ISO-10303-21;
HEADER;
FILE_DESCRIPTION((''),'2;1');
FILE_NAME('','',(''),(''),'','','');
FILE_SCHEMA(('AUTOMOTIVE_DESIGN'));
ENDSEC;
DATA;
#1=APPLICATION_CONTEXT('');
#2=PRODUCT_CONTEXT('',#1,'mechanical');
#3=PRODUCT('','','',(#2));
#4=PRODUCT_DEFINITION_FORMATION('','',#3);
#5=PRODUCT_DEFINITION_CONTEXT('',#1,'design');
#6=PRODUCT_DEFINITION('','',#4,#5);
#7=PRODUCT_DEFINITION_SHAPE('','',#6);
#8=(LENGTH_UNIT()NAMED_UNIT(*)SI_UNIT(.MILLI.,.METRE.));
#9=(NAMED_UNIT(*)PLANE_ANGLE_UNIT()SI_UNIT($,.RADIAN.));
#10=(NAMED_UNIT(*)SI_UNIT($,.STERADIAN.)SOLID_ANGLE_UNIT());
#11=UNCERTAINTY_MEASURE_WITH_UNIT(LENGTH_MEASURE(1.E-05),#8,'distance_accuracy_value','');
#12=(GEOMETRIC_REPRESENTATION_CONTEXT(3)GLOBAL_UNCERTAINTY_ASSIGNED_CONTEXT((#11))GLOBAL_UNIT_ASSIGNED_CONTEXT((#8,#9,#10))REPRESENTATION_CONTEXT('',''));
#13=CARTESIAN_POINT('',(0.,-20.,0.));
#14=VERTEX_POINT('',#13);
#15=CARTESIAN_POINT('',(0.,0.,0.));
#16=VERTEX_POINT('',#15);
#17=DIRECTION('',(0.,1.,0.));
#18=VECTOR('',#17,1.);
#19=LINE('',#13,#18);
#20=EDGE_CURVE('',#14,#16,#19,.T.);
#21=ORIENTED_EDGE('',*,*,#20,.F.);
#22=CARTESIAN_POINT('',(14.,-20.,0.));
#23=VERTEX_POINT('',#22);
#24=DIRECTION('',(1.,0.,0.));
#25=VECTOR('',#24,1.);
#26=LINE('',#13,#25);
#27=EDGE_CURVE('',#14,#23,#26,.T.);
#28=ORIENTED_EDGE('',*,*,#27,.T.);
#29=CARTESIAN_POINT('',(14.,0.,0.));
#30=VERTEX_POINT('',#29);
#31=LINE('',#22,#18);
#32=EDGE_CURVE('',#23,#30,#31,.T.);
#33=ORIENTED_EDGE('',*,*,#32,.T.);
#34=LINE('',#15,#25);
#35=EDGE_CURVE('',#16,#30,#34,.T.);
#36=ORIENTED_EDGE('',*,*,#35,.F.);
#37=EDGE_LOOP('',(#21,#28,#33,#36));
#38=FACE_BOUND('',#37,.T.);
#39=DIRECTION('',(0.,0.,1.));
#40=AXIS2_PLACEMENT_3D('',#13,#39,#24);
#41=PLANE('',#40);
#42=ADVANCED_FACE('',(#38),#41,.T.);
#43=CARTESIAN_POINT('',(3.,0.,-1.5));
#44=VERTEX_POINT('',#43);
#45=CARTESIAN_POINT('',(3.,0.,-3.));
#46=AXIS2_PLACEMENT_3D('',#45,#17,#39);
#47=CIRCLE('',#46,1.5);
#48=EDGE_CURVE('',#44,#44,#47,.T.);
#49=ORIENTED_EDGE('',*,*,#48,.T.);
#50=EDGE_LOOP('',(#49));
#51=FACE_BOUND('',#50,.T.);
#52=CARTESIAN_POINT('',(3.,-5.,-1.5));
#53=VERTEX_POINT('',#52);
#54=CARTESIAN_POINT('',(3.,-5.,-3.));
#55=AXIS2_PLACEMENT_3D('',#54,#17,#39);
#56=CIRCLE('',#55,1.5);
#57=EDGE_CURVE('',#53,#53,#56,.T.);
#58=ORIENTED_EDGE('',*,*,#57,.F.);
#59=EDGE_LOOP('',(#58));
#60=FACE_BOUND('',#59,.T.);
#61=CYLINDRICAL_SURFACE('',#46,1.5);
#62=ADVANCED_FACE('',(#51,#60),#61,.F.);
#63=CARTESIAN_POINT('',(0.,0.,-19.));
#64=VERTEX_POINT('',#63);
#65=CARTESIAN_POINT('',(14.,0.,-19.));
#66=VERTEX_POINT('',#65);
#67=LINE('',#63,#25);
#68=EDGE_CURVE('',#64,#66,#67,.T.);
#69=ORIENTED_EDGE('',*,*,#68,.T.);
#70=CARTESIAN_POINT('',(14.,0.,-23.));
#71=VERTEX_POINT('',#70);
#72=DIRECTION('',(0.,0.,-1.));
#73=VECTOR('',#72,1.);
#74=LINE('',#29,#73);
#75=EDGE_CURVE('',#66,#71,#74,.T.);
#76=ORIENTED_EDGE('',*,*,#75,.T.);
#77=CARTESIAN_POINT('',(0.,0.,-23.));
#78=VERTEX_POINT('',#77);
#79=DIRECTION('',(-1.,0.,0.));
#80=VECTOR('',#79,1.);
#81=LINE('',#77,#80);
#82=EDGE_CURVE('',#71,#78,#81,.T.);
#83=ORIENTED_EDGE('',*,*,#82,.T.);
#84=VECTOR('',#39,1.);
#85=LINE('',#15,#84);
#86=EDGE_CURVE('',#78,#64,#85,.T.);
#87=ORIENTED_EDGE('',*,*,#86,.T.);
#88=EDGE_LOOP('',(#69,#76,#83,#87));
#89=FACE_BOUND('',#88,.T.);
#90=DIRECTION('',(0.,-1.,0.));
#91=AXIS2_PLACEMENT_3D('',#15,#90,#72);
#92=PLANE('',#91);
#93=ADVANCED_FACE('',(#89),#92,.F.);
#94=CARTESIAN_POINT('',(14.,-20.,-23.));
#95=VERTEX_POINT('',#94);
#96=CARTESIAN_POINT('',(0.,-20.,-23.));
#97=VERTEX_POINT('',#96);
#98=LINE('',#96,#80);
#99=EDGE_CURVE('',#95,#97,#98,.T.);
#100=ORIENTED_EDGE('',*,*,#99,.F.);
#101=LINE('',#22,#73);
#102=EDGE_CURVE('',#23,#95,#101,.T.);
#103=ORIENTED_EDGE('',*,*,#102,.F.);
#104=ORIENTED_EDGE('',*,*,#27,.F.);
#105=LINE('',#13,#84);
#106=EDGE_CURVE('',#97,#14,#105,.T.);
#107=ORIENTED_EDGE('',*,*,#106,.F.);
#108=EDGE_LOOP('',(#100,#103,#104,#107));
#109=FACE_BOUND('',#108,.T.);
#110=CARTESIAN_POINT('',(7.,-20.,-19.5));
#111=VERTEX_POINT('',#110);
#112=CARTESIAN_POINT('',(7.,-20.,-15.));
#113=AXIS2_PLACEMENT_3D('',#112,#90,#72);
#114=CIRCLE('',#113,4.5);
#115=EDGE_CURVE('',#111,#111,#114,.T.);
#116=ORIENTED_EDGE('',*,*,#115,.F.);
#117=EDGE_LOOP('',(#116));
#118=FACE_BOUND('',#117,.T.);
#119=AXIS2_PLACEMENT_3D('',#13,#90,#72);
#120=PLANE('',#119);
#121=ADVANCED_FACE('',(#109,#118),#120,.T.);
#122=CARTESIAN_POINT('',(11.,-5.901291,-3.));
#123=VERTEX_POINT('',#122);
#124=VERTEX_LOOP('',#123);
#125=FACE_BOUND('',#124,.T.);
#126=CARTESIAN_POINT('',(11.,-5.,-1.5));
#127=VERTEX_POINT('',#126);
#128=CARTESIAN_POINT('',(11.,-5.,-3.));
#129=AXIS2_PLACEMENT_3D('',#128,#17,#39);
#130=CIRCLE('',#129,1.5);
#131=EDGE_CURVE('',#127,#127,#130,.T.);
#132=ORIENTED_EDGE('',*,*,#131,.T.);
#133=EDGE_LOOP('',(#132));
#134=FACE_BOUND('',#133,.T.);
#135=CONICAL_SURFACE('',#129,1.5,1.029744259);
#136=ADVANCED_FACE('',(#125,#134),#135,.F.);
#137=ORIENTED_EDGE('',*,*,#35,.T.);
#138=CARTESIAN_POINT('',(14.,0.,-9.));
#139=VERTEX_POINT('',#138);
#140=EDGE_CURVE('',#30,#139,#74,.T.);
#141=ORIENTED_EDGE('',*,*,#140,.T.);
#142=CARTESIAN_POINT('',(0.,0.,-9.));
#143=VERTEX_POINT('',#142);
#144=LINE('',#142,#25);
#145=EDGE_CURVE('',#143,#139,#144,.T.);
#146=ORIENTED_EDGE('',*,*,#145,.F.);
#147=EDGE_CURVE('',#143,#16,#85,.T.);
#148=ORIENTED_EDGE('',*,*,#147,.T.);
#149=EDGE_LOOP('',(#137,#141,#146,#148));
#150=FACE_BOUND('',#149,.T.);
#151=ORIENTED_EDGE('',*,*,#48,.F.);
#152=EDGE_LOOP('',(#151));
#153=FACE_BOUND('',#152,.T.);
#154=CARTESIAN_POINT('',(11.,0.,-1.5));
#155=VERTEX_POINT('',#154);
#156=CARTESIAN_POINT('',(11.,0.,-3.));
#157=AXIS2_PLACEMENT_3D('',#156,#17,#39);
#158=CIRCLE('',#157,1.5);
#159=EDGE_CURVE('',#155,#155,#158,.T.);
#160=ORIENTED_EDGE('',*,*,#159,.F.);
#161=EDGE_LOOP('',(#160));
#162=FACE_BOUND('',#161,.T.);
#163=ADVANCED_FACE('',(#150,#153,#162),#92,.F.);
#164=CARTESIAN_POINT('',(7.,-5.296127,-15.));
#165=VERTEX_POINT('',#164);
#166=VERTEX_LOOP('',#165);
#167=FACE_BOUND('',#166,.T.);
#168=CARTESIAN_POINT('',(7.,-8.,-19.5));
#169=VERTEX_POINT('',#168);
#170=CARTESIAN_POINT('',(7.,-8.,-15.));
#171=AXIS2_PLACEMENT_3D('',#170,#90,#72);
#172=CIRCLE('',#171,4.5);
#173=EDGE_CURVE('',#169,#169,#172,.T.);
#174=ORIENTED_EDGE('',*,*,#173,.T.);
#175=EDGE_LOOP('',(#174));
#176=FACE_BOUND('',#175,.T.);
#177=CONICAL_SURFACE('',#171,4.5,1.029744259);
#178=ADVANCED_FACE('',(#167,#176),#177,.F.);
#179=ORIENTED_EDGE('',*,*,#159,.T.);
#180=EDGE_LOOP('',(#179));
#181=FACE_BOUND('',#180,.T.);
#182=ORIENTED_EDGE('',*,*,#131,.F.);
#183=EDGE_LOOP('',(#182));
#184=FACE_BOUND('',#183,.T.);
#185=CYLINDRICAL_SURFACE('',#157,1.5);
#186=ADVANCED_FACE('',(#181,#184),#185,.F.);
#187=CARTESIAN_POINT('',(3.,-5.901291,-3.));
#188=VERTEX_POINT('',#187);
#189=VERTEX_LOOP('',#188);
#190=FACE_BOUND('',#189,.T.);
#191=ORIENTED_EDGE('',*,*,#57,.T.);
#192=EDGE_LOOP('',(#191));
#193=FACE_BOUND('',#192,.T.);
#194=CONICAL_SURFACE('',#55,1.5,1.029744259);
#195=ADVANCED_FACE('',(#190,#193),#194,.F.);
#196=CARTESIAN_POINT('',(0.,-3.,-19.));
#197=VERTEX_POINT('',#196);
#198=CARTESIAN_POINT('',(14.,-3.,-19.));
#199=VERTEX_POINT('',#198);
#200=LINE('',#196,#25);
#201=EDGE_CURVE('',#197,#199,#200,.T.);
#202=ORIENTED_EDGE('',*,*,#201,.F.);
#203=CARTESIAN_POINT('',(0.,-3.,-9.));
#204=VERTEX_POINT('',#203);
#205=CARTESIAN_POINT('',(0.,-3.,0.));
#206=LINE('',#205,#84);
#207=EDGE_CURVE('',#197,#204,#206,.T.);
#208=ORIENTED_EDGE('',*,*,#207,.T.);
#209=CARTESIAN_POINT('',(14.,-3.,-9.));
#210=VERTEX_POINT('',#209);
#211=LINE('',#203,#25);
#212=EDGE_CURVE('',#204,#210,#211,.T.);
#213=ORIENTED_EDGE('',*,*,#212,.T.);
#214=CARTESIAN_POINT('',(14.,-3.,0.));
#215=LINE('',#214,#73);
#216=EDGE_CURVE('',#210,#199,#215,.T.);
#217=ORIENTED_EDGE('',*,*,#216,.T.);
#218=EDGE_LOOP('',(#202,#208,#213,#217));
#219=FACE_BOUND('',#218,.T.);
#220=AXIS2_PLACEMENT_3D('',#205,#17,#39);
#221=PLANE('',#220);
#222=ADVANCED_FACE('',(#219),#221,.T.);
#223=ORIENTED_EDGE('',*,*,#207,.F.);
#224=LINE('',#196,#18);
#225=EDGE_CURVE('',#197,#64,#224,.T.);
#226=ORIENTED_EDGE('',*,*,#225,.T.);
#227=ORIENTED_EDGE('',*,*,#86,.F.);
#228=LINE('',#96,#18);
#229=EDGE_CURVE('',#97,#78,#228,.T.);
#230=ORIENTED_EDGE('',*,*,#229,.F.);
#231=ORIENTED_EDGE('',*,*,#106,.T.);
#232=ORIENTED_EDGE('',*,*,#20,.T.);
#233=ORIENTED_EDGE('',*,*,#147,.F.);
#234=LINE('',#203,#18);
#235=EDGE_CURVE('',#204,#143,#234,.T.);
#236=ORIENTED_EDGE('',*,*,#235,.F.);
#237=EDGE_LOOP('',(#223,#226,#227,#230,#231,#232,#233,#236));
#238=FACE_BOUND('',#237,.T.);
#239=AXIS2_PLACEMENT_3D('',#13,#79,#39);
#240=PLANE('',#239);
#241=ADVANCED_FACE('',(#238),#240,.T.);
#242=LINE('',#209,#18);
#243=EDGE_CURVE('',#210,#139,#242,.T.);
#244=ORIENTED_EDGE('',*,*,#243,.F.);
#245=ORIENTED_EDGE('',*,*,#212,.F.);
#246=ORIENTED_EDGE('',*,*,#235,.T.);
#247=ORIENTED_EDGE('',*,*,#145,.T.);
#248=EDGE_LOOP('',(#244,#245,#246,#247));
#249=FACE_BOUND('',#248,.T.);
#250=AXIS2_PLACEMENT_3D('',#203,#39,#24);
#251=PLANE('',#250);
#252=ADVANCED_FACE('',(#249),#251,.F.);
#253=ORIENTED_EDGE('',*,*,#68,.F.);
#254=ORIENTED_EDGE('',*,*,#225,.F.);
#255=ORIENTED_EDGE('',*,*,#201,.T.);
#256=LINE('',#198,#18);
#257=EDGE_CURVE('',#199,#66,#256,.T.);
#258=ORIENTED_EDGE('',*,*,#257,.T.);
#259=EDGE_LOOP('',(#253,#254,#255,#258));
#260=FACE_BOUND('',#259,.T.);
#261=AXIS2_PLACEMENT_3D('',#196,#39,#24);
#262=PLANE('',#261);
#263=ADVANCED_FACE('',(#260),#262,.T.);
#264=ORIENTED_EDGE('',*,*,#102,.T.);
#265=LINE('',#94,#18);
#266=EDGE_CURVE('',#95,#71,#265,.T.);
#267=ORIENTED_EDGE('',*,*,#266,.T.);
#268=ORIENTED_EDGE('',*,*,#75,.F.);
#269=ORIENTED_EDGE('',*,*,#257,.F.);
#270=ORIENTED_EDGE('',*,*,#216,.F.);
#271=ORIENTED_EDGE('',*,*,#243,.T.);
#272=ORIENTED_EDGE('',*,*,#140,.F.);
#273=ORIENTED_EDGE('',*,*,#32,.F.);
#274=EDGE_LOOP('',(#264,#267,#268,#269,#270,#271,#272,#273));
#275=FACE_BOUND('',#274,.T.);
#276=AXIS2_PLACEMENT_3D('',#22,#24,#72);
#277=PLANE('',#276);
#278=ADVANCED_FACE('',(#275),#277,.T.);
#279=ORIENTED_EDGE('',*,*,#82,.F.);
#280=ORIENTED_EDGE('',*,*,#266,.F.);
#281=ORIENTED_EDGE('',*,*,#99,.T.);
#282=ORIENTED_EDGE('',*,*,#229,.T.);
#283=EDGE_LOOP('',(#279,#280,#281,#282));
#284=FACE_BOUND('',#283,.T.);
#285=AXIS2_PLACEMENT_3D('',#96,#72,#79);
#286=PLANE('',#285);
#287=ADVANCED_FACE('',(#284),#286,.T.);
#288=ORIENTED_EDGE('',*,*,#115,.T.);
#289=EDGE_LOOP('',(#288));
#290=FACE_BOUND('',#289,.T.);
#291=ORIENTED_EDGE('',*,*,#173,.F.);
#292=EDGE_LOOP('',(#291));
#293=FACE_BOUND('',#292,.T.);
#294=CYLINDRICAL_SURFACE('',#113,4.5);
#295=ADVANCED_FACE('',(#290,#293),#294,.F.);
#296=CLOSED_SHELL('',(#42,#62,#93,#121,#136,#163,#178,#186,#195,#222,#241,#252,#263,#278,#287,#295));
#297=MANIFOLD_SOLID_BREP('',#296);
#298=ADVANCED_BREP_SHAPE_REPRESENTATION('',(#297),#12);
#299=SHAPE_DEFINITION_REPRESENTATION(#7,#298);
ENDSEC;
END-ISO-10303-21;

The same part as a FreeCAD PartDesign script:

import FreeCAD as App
import Part
import Sketcher
from FreeCAD import Vector

doc = App.newDocument("Part")
params = doc.addObject("Spreadsheet::Sheet", "Params")
for row, (alias, value) in enumerate([
    ("sketch1_width", "14 mm"),
    ("sketch1_height", "23 mm"),
    ("pad1_length", "20 mm"),
    ("sketch2_width", "14 mm"),
    ("sketch2_height", "10 mm"),
    ("pocket1_length", "3 mm"),
    ("sketch3_diameter", "3 mm"),
    ("hole_diameter", "3 mm"),
    ("hole_depth", "5 mm"),
    ("sketch4_diameter", "9 mm"),
    ("hole2_diameter", "9 mm"),
    ("hole2_depth", "12 mm"),
], start=1):
    params.set(f"A{row}", alias)
    params.set(f"B{row}", "=" + value)
    params.setAlias(f"B{row}", alias)

body = doc.addObject("PartDesign::Body", "Body")

# Sketch on XZ plane
sketch1 = doc.addObject("Sketcher::SketchObject", "Sketch")
body.addObject(sketch1)
sketch1.AttachmentSupport = (doc.XZ_Plane, [""])
sketch1.MapMode = "FlatFace"
sketch1.addGeometry(Part.LineSegment(Vector(0, -23, 0), Vector(0, 0, 0)), False)
sketch1.addGeometry(Part.LineSegment(Vector(0, 0, 0), Vector(14, 0, 0)), False)
sketch1.addGeometry(Part.LineSegment(Vector(14, 0, 0), Vector(14, -23, 0)), False)
sketch1.addGeometry(Part.LineSegment(Vector(14, -23, 0), Vector(0, -23, 0)), False)
sketch1.addConstraint(Sketcher.Constraint("Coincident", 0, 2, 1, 1))
sketch1.addConstraint(Sketcher.Constraint("Coincident", 1, 2, 2, 1))
sketch1.addConstraint(Sketcher.Constraint("Coincident", 2, 2, 3, 1))
sketch1.addConstraint(Sketcher.Constraint("Coincident", 3, 2, 0, 1))
sketch1.addConstraint(Sketcher.Constraint("Vertical", 0))
sketch1.addConstraint(Sketcher.Constraint("Horizontal", 1))
sketch1.addConstraint(Sketcher.Constraint("Vertical", 2))
sketch1.addConstraint(Sketcher.Constraint("Horizontal", 3))
sketch1.addConstraint(Sketcher.Constraint("Coincident", 0, 2, -1, 1))
sketch1.addConstraint(Sketcher.Constraint("DistanceX", 1, 1, 1, 2, 14.0))
sketch1.addConstraint(Sketcher.Constraint("DistanceY", 0, 1, 0, 2, 23.0))
sketch1.setExpression("Constraints[9]", "Params.sketch1_width")
sketch1.setExpression("Constraints[10]", "Params.sketch1_height")
pad1 = doc.addObject("PartDesign::Pad", "Pad")
body.addObject(pad1)
pad1.Profile = sketch1
pad1.setExpression("Length", "Params.pad1_length")

# Sketch on XZ plane
sketch2 = doc.addObject("Sketcher::SketchObject", "Sketch001")
body.addObject(sketch2)
sketch2.AttachmentSupport = (doc.XZ_Plane, [""])
sketch2.MapMode = "FlatFace"
sketch2.addGeometry(Part.LineSegment(Vector(0, -19, 0), Vector(0, -9, 0)), False)
sketch2.addGeometry(Part.LineSegment(Vector(0, -9, 0), Vector(14, -9, 0)), False)
sketch2.addGeometry(Part.LineSegment(Vector(14, -9, 0), Vector(14, -19, 0)), False)
sketch2.addGeometry(Part.LineSegment(Vector(14, -19, 0), Vector(0, -19, 0)), False)
sketch2.addConstraint(Sketcher.Constraint("Coincident", 0, 2, 1, 1))
sketch2.addConstraint(Sketcher.Constraint("Coincident", 1, 2, 2, 1))
sketch2.addConstraint(Sketcher.Constraint("Coincident", 2, 2, 3, 1))
sketch2.addConstraint(Sketcher.Constraint("Coincident", 3, 2, 0, 1))
sketch2.addConstraint(Sketcher.Constraint("Vertical", 0))
sketch2.addConstraint(Sketcher.Constraint("Horizontal", 1))
sketch2.addConstraint(Sketcher.Constraint("Vertical", 2))
sketch2.addConstraint(Sketcher.Constraint("Horizontal", 3))
sketch2.addConstraint(Sketcher.Constraint("PointOnObject", 0, 2, -2))
sketch2.addConstraint(Sketcher.Constraint("DistanceX", 1, 1, 1, 2, 14.0))
sketch2.addConstraint(Sketcher.Constraint("DistanceY", 0, 1, 0, 2, 10.0))
sketch2.addConstraint(Sketcher.Constraint("DistanceY", 0, 2, -1, 1, 9.0))
sketch2.setExpression("Constraints[9]", "Params.sketch2_width")
sketch2.setExpression("Constraints[10]", "Params.sketch2_height")
pocket1 = doc.addObject("PartDesign::Pocket", "Pocket")
body.addObject(pocket1)
pocket1.Profile = sketch2
pocket1.setExpression("Length", "Params.pocket1_length")
pocket1.Reversed = True

# Sketch on XZ plane
sketch3 = doc.addObject("Sketcher::SketchObject", "Sketch002")
body.addObject(sketch3)
sketch3.AttachmentSupport = (doc.XZ_Plane, [""])
sketch3.MapMode = "FlatFace"
sketch3.addGeometry(Part.Circle(Vector(11, -3, 0), Vector(0, 0, 1), 1.5), False)
sketch3.addGeometry(Part.Circle(Vector(3, -3, 0), Vector(0, 0, 1), 1.5), False)
sketch3.addConstraint(Sketcher.Constraint("Equal", 0, 1))
sketch3.addConstraint(Sketcher.Constraint("Horizontal", 0, 3, 1, 3))
sketch3.addConstraint(Sketcher.Constraint("Diameter", 0, 3.0))
sketch3.addConstraint(Sketcher.Constraint("DistanceX", -1, 1, 0, 3, 11.0))
sketch3.addConstraint(Sketcher.Constraint("DistanceY", 0, 3, -1, 1, 3.0))
sketch3.addConstraint(Sketcher.Constraint("DistanceX", -1, 1, 1, 3, 3.0))
sketch3.setExpression("Constraints[2]", "Params.sketch3_diameter")
doc.recompute()
hole = doc.addObject("PartDesign::Hole", "Hole")
body.addObject(hole)
hole.Profile = sketch3
hole.ThreadType = "None"
hole.setExpression("Diameter", "Params.hole_diameter")
hole.DepthType = "Dimension"
hole.setExpression("Depth", "Params.hole_depth")
hole.DrillPoint = "Angled"
hole.DrillPointAngle = 118
hole.Reversed = True

# Sketch on XZ plane
sketch4 = doc.addObject("Sketcher::SketchObject", "Sketch003")
body.addObject(sketch4)
sketch4.AttachmentSupport = (doc.XZ_Plane, [""])
sketch4.MapMode = "FlatFace"
sketch4.AttachmentOffset = App.Placement(Vector(0, 0, 20), App.Rotation())
sketch4.addGeometry(Part.Circle(Vector(7, -15, 0), Vector(0, 0, 1), 4.5), False)
sketch4.addConstraint(Sketcher.Constraint("Diameter", 0, 9.0))
sketch4.addConstraint(Sketcher.Constraint("DistanceX", -1, 1, 0, 3, 7.0))
sketch4.addConstraint(Sketcher.Constraint("DistanceY", 0, 3, -1, 1, 15.0))
sketch4.setExpression("Constraints[0]", "Params.sketch4_diameter")
doc.recompute()
hole2 = doc.addObject("PartDesign::Hole", "Hole001")
body.addObject(hole2)
hole2.Profile = sketch4
hole2.ThreadType = "None"
hole2.setExpression("Diameter", "Params.hole2_diameter")
hole2.DepthType = "Dimension"
hole2.setExpression("Depth", "Params.hole2_depth")
hole2.DrillPoint = "Angled"
hole2.DrillPointAngle = 118

doc.recompute()
